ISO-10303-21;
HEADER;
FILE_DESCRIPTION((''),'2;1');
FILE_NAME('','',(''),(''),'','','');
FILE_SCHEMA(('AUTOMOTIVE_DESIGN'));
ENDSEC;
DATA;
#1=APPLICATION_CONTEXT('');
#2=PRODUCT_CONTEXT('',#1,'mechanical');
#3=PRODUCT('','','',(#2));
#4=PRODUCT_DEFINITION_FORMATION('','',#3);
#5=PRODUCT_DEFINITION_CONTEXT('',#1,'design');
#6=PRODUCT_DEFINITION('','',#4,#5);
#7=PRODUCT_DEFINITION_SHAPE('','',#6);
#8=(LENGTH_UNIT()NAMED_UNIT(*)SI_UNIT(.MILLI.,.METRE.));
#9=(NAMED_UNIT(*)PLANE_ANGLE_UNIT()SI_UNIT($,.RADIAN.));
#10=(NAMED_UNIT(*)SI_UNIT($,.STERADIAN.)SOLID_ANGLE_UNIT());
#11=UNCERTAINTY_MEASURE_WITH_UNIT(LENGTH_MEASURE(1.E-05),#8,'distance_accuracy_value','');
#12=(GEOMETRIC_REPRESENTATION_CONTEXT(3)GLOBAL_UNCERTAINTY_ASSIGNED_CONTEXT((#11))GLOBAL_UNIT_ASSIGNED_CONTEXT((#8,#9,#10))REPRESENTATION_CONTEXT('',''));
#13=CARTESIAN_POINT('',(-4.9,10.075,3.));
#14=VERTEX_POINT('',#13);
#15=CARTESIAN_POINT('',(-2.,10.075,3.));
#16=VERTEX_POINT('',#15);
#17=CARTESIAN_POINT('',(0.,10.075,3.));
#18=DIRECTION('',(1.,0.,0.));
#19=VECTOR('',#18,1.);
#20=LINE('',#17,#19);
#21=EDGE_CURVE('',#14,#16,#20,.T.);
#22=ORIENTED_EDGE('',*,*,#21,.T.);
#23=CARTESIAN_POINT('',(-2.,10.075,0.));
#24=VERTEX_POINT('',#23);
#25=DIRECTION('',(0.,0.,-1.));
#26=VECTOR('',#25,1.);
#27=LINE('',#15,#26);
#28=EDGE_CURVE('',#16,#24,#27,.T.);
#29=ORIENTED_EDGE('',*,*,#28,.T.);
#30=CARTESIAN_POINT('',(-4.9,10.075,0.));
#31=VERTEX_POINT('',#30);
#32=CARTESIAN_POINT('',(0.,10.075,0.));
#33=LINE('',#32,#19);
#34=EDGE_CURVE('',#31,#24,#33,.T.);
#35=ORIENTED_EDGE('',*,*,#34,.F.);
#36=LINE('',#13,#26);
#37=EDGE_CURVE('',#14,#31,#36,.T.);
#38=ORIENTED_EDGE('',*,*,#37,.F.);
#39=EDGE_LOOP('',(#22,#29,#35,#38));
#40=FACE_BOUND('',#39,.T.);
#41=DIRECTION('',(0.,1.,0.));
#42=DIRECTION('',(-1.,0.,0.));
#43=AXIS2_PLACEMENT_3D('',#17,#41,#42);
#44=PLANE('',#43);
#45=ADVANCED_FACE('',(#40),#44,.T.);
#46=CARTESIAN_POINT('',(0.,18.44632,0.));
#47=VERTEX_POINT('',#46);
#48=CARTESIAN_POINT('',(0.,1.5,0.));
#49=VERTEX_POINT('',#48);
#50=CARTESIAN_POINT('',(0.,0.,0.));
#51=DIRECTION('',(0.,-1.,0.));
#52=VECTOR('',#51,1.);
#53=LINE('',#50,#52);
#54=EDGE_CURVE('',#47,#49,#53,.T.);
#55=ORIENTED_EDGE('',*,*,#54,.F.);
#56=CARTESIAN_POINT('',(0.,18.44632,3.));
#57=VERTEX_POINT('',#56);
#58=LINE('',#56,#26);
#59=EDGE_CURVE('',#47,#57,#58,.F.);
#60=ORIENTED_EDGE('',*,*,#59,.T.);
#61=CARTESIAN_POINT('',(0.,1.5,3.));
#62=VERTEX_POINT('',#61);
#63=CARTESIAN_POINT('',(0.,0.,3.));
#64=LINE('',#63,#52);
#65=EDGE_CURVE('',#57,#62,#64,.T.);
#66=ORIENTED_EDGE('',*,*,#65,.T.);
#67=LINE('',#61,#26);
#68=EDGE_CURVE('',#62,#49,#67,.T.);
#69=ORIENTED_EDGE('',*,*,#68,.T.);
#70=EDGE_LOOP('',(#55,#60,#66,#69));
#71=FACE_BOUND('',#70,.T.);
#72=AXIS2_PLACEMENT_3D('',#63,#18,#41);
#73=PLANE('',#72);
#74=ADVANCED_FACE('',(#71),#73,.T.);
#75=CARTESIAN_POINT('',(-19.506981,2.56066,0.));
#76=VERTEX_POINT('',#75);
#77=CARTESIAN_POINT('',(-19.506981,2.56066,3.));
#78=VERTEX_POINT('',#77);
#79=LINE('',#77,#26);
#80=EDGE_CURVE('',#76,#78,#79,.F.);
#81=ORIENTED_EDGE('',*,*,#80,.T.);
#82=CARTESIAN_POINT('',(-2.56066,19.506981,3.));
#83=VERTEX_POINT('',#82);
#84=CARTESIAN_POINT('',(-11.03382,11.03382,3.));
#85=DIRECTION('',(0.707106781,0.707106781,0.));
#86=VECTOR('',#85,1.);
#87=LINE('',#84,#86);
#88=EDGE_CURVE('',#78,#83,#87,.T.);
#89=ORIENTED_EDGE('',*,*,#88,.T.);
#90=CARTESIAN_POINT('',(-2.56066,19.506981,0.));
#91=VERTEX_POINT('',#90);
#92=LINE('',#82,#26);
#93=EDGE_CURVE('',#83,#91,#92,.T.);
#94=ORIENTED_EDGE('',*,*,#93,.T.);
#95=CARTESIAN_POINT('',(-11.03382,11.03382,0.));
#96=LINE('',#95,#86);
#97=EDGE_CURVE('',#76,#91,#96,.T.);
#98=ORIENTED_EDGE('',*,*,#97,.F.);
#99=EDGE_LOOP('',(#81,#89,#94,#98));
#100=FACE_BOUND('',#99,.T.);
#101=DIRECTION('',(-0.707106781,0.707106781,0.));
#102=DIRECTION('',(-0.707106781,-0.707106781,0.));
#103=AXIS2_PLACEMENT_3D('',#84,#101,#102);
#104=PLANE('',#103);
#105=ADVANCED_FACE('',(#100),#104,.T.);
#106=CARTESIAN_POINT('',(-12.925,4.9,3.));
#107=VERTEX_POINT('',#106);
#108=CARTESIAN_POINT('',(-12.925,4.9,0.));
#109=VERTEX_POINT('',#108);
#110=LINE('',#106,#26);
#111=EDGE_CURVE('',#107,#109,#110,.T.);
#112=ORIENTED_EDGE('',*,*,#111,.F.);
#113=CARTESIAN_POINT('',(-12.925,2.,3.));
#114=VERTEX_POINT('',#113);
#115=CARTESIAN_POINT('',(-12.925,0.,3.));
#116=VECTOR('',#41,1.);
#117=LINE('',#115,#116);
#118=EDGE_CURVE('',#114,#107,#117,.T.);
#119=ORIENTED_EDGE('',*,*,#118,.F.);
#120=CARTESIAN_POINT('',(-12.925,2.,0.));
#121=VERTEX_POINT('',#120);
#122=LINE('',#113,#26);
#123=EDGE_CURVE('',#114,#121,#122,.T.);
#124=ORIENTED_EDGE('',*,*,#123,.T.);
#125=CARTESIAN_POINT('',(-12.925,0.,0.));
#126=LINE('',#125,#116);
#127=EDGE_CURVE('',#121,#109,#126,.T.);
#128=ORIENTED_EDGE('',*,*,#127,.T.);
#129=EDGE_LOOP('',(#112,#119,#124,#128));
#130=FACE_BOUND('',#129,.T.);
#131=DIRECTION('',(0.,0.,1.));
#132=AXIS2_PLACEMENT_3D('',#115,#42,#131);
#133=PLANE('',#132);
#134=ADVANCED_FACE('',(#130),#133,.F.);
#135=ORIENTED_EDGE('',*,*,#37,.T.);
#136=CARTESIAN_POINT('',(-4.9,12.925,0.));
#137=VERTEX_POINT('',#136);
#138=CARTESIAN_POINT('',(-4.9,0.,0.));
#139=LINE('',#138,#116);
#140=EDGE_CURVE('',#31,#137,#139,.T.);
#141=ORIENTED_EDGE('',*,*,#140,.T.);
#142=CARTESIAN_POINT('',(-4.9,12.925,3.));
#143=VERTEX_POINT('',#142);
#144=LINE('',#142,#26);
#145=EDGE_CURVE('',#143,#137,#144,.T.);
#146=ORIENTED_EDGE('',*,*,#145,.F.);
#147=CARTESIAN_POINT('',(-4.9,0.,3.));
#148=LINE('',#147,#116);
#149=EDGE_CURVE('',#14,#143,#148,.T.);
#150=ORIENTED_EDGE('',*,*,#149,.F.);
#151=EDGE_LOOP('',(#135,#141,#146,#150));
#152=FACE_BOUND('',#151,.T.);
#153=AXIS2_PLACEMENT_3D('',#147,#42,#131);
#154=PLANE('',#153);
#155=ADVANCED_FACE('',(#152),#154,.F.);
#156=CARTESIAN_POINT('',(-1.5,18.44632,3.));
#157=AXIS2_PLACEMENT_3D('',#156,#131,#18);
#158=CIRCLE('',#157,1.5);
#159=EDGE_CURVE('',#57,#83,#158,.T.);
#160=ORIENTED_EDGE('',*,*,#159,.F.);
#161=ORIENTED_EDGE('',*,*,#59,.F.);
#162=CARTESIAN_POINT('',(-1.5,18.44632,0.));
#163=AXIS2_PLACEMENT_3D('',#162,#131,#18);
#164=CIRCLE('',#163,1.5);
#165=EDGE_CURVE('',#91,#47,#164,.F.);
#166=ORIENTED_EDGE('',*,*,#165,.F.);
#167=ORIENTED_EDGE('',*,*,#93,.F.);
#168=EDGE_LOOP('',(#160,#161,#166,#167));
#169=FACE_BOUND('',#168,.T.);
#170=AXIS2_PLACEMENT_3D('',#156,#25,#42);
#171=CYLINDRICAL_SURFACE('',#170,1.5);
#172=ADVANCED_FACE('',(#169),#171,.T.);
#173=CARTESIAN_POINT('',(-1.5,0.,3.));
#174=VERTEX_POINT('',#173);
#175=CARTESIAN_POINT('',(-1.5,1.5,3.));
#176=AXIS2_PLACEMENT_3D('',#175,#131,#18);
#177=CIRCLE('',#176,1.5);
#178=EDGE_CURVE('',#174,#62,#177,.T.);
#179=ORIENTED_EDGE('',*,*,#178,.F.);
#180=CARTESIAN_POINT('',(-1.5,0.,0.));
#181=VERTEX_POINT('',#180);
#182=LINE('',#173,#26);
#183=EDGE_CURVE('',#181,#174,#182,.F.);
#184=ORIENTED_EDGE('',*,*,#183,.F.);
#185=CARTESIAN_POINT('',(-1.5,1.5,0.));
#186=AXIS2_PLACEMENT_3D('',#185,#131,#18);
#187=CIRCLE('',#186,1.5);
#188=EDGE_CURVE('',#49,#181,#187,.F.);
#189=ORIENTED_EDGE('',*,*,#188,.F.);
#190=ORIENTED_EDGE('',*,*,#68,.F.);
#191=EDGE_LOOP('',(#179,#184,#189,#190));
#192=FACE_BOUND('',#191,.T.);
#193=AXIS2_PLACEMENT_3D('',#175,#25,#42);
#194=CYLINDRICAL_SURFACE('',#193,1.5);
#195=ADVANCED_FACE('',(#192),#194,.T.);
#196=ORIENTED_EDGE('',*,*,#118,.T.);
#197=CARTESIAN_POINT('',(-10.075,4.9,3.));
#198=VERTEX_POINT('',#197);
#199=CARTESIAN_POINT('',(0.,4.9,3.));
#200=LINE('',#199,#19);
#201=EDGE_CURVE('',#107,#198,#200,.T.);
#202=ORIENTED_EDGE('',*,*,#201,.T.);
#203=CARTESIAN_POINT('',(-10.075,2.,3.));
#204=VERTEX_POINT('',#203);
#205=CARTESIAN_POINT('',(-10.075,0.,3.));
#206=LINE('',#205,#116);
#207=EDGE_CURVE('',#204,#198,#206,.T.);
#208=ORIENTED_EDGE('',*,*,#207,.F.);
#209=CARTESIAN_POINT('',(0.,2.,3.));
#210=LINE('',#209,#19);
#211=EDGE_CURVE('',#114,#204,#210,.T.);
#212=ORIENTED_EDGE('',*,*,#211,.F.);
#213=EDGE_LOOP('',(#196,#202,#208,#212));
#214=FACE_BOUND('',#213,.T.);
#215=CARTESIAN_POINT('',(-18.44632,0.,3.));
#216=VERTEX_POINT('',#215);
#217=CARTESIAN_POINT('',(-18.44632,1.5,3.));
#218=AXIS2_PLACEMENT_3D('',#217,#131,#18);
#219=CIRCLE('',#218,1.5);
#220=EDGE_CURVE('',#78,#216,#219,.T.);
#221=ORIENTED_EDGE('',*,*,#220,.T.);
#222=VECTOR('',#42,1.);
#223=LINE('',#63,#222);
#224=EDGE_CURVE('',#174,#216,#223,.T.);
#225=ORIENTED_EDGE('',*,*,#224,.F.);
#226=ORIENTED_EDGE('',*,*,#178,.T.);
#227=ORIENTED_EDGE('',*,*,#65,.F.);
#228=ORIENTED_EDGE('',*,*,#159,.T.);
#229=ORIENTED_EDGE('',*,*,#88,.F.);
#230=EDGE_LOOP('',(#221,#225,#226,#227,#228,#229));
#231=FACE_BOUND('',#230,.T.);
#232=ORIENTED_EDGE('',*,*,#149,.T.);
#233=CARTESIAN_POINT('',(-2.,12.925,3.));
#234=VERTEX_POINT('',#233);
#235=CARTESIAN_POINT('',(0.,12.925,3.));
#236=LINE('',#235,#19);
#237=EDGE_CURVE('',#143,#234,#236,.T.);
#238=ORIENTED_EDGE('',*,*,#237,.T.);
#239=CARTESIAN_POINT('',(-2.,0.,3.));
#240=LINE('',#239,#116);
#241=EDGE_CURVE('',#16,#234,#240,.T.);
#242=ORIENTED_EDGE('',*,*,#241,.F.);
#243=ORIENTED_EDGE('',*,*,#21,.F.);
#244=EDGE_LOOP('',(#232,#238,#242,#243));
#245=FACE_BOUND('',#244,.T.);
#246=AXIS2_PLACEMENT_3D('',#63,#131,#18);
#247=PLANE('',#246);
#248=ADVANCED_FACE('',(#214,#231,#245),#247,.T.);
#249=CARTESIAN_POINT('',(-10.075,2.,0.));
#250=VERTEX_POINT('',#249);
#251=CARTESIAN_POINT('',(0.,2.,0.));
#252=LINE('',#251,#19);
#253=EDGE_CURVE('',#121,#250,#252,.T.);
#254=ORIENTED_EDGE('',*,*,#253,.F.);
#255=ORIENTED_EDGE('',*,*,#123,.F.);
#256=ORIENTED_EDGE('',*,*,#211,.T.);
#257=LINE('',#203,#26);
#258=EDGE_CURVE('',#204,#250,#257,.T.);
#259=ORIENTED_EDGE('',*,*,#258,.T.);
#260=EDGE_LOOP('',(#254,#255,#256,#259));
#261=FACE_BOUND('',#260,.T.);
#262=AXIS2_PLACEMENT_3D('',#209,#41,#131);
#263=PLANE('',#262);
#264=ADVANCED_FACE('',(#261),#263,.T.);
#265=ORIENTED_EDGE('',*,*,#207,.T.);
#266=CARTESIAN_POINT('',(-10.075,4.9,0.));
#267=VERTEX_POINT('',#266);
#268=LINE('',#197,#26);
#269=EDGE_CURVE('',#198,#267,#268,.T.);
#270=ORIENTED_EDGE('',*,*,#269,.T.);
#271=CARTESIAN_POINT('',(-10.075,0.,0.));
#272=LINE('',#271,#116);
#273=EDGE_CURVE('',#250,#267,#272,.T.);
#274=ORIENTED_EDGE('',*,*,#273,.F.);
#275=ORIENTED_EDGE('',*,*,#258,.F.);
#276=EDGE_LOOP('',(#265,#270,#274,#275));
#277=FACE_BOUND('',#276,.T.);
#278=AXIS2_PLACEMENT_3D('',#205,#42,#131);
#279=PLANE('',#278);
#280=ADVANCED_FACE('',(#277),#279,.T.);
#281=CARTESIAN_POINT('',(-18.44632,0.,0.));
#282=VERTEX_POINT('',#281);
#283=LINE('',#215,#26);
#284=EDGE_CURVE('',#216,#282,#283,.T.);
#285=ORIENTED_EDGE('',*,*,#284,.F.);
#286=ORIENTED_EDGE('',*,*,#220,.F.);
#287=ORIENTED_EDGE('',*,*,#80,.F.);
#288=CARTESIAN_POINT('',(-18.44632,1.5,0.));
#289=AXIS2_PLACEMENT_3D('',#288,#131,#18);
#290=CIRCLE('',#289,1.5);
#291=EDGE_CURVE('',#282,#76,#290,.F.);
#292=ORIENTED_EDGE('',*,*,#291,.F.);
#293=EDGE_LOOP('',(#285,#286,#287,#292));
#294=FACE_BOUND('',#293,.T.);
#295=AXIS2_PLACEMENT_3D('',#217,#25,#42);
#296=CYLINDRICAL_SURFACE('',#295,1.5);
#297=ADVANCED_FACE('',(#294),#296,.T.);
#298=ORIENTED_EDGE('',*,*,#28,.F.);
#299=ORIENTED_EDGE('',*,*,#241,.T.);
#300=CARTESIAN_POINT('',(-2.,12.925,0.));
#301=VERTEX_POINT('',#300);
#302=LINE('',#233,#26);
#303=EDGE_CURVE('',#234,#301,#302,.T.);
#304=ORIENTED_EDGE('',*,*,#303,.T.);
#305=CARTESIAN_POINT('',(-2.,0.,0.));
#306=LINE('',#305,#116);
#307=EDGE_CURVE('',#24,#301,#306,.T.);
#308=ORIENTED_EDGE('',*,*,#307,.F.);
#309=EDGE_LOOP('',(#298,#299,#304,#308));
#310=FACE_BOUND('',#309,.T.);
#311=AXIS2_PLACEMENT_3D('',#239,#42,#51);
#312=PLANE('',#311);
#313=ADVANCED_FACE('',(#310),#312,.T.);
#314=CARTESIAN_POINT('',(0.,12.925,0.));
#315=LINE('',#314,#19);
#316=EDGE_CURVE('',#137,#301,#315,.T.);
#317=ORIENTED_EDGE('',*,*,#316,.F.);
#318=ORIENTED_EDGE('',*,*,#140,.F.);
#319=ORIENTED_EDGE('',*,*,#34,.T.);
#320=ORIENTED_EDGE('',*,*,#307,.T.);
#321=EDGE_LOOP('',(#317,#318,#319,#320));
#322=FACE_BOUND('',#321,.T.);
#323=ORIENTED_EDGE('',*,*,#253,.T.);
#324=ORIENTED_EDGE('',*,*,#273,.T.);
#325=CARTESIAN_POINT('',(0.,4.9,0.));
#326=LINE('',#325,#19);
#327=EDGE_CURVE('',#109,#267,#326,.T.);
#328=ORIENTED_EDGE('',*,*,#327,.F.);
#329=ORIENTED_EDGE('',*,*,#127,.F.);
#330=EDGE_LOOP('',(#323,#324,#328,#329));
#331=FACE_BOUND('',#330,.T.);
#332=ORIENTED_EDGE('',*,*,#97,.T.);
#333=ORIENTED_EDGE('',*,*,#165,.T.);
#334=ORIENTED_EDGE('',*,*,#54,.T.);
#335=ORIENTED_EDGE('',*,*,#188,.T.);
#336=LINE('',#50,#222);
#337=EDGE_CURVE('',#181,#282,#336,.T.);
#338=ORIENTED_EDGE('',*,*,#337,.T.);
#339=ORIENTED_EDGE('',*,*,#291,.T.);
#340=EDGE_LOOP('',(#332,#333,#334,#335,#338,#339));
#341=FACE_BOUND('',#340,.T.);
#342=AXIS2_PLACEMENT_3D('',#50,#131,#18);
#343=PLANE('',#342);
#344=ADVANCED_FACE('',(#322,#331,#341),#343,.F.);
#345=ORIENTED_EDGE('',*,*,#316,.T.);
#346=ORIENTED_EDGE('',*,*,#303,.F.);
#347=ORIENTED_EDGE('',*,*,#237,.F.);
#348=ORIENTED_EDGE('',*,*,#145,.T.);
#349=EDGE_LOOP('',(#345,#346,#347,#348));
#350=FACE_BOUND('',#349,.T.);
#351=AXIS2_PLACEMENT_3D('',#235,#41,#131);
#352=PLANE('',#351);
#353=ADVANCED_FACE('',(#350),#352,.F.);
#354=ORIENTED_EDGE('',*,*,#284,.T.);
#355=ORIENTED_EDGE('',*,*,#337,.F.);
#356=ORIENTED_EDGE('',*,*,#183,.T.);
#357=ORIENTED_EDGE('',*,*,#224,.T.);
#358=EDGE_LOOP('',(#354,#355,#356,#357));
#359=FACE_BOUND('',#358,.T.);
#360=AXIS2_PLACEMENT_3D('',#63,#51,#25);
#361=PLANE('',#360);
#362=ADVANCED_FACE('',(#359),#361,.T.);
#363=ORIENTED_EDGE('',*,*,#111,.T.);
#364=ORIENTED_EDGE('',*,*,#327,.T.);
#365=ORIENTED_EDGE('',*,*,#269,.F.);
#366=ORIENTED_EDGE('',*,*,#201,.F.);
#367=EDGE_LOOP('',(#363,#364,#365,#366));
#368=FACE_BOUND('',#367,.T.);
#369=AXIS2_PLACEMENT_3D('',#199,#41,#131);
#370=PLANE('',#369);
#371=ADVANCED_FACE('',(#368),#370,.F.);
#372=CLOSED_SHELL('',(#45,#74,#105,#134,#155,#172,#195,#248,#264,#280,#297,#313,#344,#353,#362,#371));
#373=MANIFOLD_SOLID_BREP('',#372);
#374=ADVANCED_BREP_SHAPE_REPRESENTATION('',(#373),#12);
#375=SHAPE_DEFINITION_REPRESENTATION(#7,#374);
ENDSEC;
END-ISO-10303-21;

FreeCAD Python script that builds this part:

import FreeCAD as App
import Part
import Sketcher

V = App.Vector


def edges_at(feature, points):
    """Names of the edges that pass closest to the given points."""
    edges = feature.Shape.Edges
    near = lambda p: min(range(len(edges)), key=lambda i: edges[i].distToShape(Part.Vertex(*p))[0])
    return sorted({f"Edge{near(p) + 1}" for p in points})

doc = App.newDocument("Part")
body = doc.addObject("PartDesign::Body", "Body")

# Sketch on XY plane
sketch1 = body.newObject("Sketcher::SketchObject", "Sketch")
sketch1.AttachmentSupport = (doc.getObject("XY_Plane"), [""])
sketch1.MapMode = "FlatFace"
sketch1.addGeometry([
    Part.LineSegment(V(0, 0, 0), V(0, 22.1, 0)),  # 0
    Part.LineSegment(V(0, 22.1, 0), V(-22.1, 0, 0)),  # 1
    Part.LineSegment(V(-22.1, 0, 0), V(0, 0, 0)),  # 2
    Part.LineSegment(V(-12.9, 2, 0), V(-12.9, 4.9, 0)),  # 3
    Part.LineSegment(V(-12.9, 4.9, 0), V(-10.1, 4.9, 0)),  # 4
    Part.LineSegment(V(-10.1, 4.9, 0), V(-10.1, 2, 0)),  # 5
    Part.LineSegment(V(-10.1, 2, 0), V(-12.9, 2, 0)),  # 6
    Part.LineSegment(V(-4.9, 10.1, 0), V(-4.9, 12.9, 0)),  # 7
    Part.LineSegment(V(-4.9, 12.9, 0), V(-2, 12.9, 0)),  # 8
    Part.LineSegment(V(-2, 12.9, 0), V(-2, 10.1, 0)),  # 9
    Part.LineSegment(V(-2, 10.1, 0), V(-4.9, 10.1, 0)),  # 10
], False)
sketch1.addConstraint([
    Sketcher.Constraint("Coincident", 0, 2, 1, 1),
    Sketcher.Constraint("Coincident", 1, 2, 2, 1),
    Sketcher.Constraint("Coincident", 2, 2, 0, 1),
    Sketcher.Constraint("Coincident", 3, 2, 4, 1),
    Sketcher.Constraint("Coincident", 4, 2, 5, 1),
    Sketcher.Constraint("Coincident", 5, 2, 6, 1),
    Sketcher.Constraint("Coincident", 6, 2, 3, 1),
    Sketcher.Constraint("Coincident", 7, 2, 8, 1),
    Sketcher.Constraint("Coincident", 8, 2, 9, 1),
    Sketcher.Constraint("Coincident", 9, 2, 10, 1),
    Sketcher.Constraint("Coincident", 10, 2, 7, 1),
    Sketcher.Constraint("Vertical", 0),
    Sketcher.Constraint("Horizontal", 2),
    Sketcher.Constraint("Vertical", 3),
    Sketcher.Constraint("Horizontal", 4),
    Sketcher.Constraint("Vertical", 5),
    Sketcher.Constraint("Horizontal", 6),
    Sketcher.Constraint("Vertical", 7),
    Sketcher.Constraint("Horizontal", 8),
    Sketcher.Constraint("Vertical", 9),
    Sketcher.Constraint("Horizontal", 10),
    Sketcher.Constraint("Coincident", 2, 2, -1, 1),
    Sketcher.Constraint("Equal", 2, 0),
    Sketcher.Constraint("Equal", 10, 3),
    Sketcher.Constraint("Equal", 6, 7),
    Sketcher.Constraint("DistanceX", 8, 1, 8, 2, 2.9),
    Sketcher.Constraint("DistanceY", -1, 1, 5, 2, 2.0),
    Sketcher.Constraint("DistanceX", 8, 2, -1, 1, 2.0),
    Sketcher.Constraint("DistanceX", 4, 1, 4, 2, 2.85),
    Sketcher.Constraint("DistanceX", 3, 2, -1, 1, 12.925),
    Sketcher.Constraint("DistanceY", -1, 1, 7, 2, 12.925),
    Sketcher.Constraint("DistanceX", 2, 1, 2, 2, 22.067641),
])
pad1 = body.newObject("PartDesign::Pad", "Pad")
pad1.Profile = sketch1
pad1.Length = 3
doc.recompute()

fillet = body.newObject("PartDesign::Fillet", "Fillet")
fillet.Base = (pad1, edges_at(pad1, [(0, 0, 1.5), (-22.068, 0, 1.5), (0, 22.068, 1.5)]))
fillet.Radius = 1.5

doc.recompute()
